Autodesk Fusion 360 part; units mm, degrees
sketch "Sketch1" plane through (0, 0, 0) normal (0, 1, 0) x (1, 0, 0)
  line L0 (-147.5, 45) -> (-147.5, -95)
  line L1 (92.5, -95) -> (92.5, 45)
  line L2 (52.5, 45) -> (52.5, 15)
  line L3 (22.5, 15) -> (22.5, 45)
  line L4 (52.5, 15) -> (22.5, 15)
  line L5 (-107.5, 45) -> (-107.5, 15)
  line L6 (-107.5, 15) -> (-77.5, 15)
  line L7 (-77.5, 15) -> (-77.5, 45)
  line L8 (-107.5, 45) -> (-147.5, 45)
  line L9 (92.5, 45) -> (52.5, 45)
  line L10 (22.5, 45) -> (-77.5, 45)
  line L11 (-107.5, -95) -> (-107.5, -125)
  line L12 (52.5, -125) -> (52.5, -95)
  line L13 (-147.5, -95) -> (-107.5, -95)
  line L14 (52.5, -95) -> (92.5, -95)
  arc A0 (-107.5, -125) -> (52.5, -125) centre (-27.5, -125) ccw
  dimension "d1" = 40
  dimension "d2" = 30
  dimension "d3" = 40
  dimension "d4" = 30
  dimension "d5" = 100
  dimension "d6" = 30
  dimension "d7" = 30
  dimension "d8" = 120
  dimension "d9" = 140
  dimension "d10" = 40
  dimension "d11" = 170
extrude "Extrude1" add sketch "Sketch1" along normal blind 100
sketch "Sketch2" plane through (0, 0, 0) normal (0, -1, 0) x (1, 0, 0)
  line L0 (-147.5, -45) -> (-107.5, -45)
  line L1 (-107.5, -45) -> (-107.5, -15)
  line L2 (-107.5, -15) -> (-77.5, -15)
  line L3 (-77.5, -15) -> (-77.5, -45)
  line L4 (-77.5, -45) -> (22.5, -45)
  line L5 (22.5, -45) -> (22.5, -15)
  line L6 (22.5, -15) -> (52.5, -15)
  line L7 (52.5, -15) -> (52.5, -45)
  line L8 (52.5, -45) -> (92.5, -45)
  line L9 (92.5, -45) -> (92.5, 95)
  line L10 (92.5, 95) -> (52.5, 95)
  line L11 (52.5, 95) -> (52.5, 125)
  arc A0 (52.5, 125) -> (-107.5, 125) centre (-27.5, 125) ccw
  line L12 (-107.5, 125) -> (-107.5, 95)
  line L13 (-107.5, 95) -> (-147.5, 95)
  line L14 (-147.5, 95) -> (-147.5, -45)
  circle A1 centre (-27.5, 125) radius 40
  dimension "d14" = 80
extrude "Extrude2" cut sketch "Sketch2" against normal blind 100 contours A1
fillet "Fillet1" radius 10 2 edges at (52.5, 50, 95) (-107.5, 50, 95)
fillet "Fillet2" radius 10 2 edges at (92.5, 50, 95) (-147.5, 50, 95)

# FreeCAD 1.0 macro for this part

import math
import FreeCAD as App
import Part
import Sketcher
from FreeCAD import Vector


def edges_at(feature, points):
    """Names of the edges that pass closest to the given points."""
    edges = feature.Shape.Edges
    near = lambda p: min(range(len(edges)), key=lambda i: edges[i].distToShape(Part.Vertex(*p))[0])
    return sorted({f"Edge{near(p) + 1}" for p in points})

doc = App.newDocument("Part")
body = doc.addObject("PartDesign::Body", "Body")

sketch1 = doc.addObject("Sketcher::SketchObject", "Sketch")
body.addObject(sketch1)
sketch1.AttachmentSupport = (doc.XZ_Plane, [""])
sketch1.MapMode = "FlatFace"
sketch1.addGeometry([
    Part.LineSegment(Vector(-108, -45, 0), Vector(-148, -45, 0)),
    Part.LineSegment(Vector(-148, -45, 0), Vector(-148, 95, 0)),
    Part.LineSegment(Vector(-148, 95, 0), Vector(-108, 95, 0)),
    Part.LineSegment(Vector(-108, 95, 0), Vector(-108, 125, 0)),
    Part.ArcOfCircle(Part.Circle(Vector(-28, 125, 0), Vector(0, 0, 1), 80), math.radians(0), math.radians(180)),
    Part.LineSegment(Vector(52, 125, 0), Vector(52, 95, 0)),
    Part.LineSegment(Vector(52, 95, 0), Vector(92, 95, 0)),
    Part.LineSegment(Vector(92, 95, 0), Vector(92, -45, 0)),
    Part.LineSegment(Vector(92, -45, 0), Vector(52, -45, 0)),
    Part.LineSegment(Vector(52, -45, 0), Vector(52, -15, 0)),
    Part.LineSegment(Vector(52, -15, 0), Vector(22, -15, 0)),
    Part.LineSegment(Vector(22, -15, 0), Vector(22, -45, 0)),
    Part.LineSegment(Vector(22, -45, 0), Vector(-78, -45, 0)),
    Part.LineSegment(Vector(-78, -45, 0), Vector(-78, -15, 0)),
    Part.LineSegment(Vector(-78, -15, 0), Vector(-108, -15, 0)),
    Part.LineSegment(Vector(-108, -15, 0), Vector(-108, -45, 0)),
], False)
sketch1.addConstraint([
    Sketcher.Constraint("Coincident", 0, 2, 1, 1),
    Sketcher.Constraint("Coincident", 1, 2, 2, 1),
    Sketcher.Constraint("Coincident", 2, 2, 3, 1),
    Sketcher.Constraint("Tangent", 3, 2, 4, 2),
    Sketcher.Constraint("Tangent", 4, 1, 5, 1),
    Sketcher.Constraint("Coincident", 5, 2, 6, 1),
    Sketcher.Constraint("Coincident", 6, 2, 7, 1),
    Sketcher.Constraint("Coincident", 7, 2, 8, 1),
    Sketcher.Constraint("Coincident", 8, 2, 9, 1),
    Sketcher.Constraint("Coincident", 9, 2, 10, 1),
    Sketcher.Constraint("Coincident", 10, 2, 11, 1),
    Sketcher.Constraint("Coincident", 11, 2, 12, 1),
    Sketcher.Constraint("Coincident", 12, 2, 13, 1),
    Sketcher.Constraint("Coincident", 13, 2, 14, 1),
    Sketcher.Constraint("Coincident", 14, 2, 15, 1),
    Sketcher.Constraint("Coincident", 15, 2, 0, 1),
    Sketcher.Constraint("Horizontal", 0),
    Sketcher.Constraint("Vertical", 1),
    Sketcher.Constraint("Horizontal", 2),
    Sketcher.Constraint("Vertical", 3),
    Sketcher.Constraint("Vertical", 5),
    Sketcher.Constraint("Horizontal", 6),
    Sketcher.Constraint("Vertical", 7),
    Sketcher.Constraint("Horizontal", 8),
    Sketcher.Constraint("Vertical", 9),
    Sketcher.Constraint("Horizontal", 10),
    Sketcher.Constraint("Vertical", 11),
    Sketcher.Constraint("Horizontal", 12),
    Sketcher.Constraint("Vertical", 13),
    Sketcher.Constraint("Horizontal", 14),
    Sketcher.Constraint("Vertical", 15),
    Sketcher.Constraint("Horizontal", 2, 2, 5, 2),
    Sketcher.Constraint("Horizontal", 0, 2, 7, 2),
    Sketcher.Constraint("Horizontal", 8, 2, 11, 2),
    Sketcher.Constraint("Horizontal", 10, 2, 13, 2),
    Sketcher.Constraint("Vertical", 5, 2, 8, 2),
    Sketcher.Constraint("Vertical", 3, 2, 14, 2),
    Sketcher.Constraint("Equal", 2, 6),
    Sketcher.Constraint("Equal", 10, 14),
    Sketcher.Constraint("Equal", 14, 3),
    Sketcher.Constraint("Equal", 5, 9),
    Sketcher.Constraint("DistanceX", 0, 2, 0, 1, 40.0),
    Sketcher.Constraint("DistanceX", 10, 2, 10, 1, 30.0),
    Sketcher.Constraint("DistanceX", 12, 2, 12, 1, 100.0),
    Sketcher.Constraint("DistanceY", 1, 1, 1, 2, 140.0),
    Sketcher.Constraint("DistanceY", -1, 1, 4, 3, 125.0),
    Sketcher.Constraint("DistanceX", 4, 3, -1, 1, 27.5),
])
pad1 = doc.addObject("PartDesign::Pad", "Pad")
body.addObject(pad1)
pad1.Profile = sketch1
pad1.Length = 100
pad1.Reversed = True

sketch2 = doc.addObject("Sketcher::SketchObject", "Sketch001")
body.addObject(sketch2)
sketch2.AttachmentSupport = (doc.XZ_Plane, [""])
sketch2.MapMode = "FlatFace"
sketch2.addGeometry(Part.Circle(Vector(-28, 125, 0), Vector(0, 0, 1), 40), False)
sketch2.addConstraint([
    Sketcher.Constraint("Diameter", 0, 80.0),
    Sketcher.Constraint("DistanceY", -1, 1, 0, 3, 125.0),
    Sketcher.Constraint("DistanceX", 0, 3, -1, 1, 27.5),
])
pocket1 = doc.addObject("PartDesign::Pocket", "Pocket")
body.addObject(pocket1)
pocket1.Profile = sketch2
pocket1.Length = 100
doc.recompute()

fillet = doc.addObject("PartDesign::Fillet", "Fillet")
body.addObject(fillet)
fillet.Base = (pocket1, edges_at(pocket1, [(52.5, 50, 95), (-107.5, 50, 95)]))
fillet.Radius = 10
doc.recompute()

fillet2 = doc.addObject("PartDesign::Fillet", "Fillet001")
body.addObject(fillet2)
fillet2.Base = (fillet, edges_at(fillet, [(92.5, 50, 95), (-147.5, 50, 95)]))
fillet2.Radius = 10

doc.recompute()
